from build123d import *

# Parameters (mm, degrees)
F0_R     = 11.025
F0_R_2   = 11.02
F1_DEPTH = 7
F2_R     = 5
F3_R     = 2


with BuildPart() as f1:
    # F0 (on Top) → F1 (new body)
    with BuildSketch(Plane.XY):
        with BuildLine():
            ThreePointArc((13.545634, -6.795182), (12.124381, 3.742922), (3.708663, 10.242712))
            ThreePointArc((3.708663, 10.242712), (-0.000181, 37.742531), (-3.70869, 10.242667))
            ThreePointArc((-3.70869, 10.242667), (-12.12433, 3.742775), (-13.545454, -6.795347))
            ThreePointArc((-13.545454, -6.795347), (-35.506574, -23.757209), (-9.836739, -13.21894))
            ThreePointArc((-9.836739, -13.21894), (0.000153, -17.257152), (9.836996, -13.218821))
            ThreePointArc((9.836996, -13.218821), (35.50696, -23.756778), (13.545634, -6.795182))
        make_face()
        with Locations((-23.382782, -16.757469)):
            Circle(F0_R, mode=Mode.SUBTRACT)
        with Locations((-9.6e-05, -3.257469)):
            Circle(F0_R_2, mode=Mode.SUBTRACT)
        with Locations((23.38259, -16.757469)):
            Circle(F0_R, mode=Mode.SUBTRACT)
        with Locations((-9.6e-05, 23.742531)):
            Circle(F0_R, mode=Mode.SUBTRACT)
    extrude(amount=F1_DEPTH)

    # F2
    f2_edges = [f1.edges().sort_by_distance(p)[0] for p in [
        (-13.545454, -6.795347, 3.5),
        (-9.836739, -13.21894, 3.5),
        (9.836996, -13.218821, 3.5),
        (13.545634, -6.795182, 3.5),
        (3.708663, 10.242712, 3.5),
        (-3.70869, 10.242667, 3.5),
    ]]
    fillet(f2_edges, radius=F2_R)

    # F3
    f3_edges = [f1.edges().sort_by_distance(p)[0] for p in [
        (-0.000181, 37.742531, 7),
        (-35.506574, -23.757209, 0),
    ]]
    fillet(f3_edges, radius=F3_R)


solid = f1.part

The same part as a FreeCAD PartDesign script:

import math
import FreeCAD as App
import Part
import Sketcher
Q = App.Units.Quantity


def edges_at(feature, points):
    """Names of the edges that pass closest to the given points."""
    edges = feature.Shape.Edges
    near = lambda p: min(range(len(edges)), key=lambda i: edges[i].distToShape(Part.Vertex(*p))[0])
    return sorted({f"Edge{near(p) + 1}" for p in points})

doc = App.newDocument("Part")
body = doc.addObject("PartDesign::Body", "Body")

sketch1 = doc.addObject("Sketcher::SketchObject", "Sketch")
body.addObject(sketch1)
sketch1.AttachmentSupport = (doc.XY_Plane, [""])
sketch1.MapMode = "FlatFace"
sketch1.addGeometry([
    Part.ArcOfCircle(Part.Circle(App.Vector(0.000067, -3.257153, 0), App.Vector(0, 0, 1), 14.000001), math.radians(-14.638311), math.radians(74.639008)),
    Part.ArcOfCircle(Part.Circle(App.Vector(-0.000095, 23.742531, 0), App.Vector(0, 0, 1), 14), math.radians(-74.638317), math.radians(254.639012)),
    Part.ArcOfCircle(Part.Circle(App.Vector(0.000067, -3.257151, 0), App.Vector(0, 0, 1), 13.999999), math.radians(105.361678), math.radians(194.639017)),
    Part.ArcOfCircle(Part.Circle(App.Vector(-23.382261, -16.757135, 0), App.Vector(0, 0, 1), 14), math.radians(45.361681), math.radians(374.639013)),
    Part.ArcOfCircle(Part.Circle(App.Vector(0.000068, -3.257152, 0), App.Vector(0, 0, 1), 14), math.radians(-134.63832), math.radians(-45.360987)),
    Part.ArcOfCircle(Part.Circle(App.Vector(23.382562, -16.756852, 0), App.Vector(0, 0, 1), 14), math.radians(165.361682), math.radians(494.639009)),
    Part.Circle(App.Vector(-23.382782, -16.757469, 0), App.Vector(0, 0, 1), 11.025),
    Part.Circle(App.Vector(23.38259, -16.757469, 0), App.Vector(0, 0, 1), 11.025),
    Part.Circle(App.Vector(-0.000096, -3.257469, 0), App.Vector(0, 0, 1), 11.02),
    Part.Circle(App.Vector(-0.000096, 23.742531, 0), App.Vector(0, 0, 1), 11.025),
], False)
sketch1.addConstraint([
    Sketcher.Constraint("Coincident", 0, 2, 1, 1),
    Sketcher.Constraint("Coincident", 1, 2, 2, 1),
    Sketcher.Constraint("Coincident", 2, 2, 3, 1),
    Sketcher.Constraint("Coincident", 3, 2, 4, 1),
    Sketcher.Constraint("Coincident", 4, 2, 5, 1),
    Sketcher.Constraint("Coincident", 5, 2, 0, 1),
    Sketcher.Constraint("Coincident", 2, 3, 0, 3),
    Sketcher.Constraint("Coincident", 4, 3, 0, 3),
    Sketcher.Constraint("Coincident", 9, 3, 1, 3),
    Sketcher.Constraint("Equal", 0, 1),
    Sketcher.Constraint("Equal", 1, 2),
    Sketcher.Constraint("Equal", 2, 3),
    Sketcher.Constraint("Equal", 3, 4),
    Sketcher.Constraint("Equal", 4, 5),
    Sketcher.Constraint("Equal", 6, 7),
    Sketcher.Constraint("Equal", 7, 9),
    Sketcher.Constraint("Horizontal", 6, 3, 7, 3),
    Sketcher.Constraint("Vertical", 1, 3, 8, 3),
    Sketcher.Constraint("Radius", 0, Q("14.000001 mm")),
    Sketcher.Constraint("Diameter", 6, Q("22.05 mm")),
    Sketcher.Constraint("Diameter", 8, Q("22.04 mm")),
    Sketcher.Constraint("DistanceY", 8, 3, 9, 3, Q("27 mm")),
    Sketcher.Constraint("DistanceY", 5, 3, 4, 3, Q("13.499699 mm")),
    Sketcher.Constraint("DistanceY", -1, 1, 1, 3, Q("23.742531 mm")),
    Sketcher.Constraint("DistanceY", 2, 3, -1, 1, Q("3.257151 mm")),
    Sketcher.Constraint("DistanceX", 3, 3, -1, 1, Q("23.382261 mm")),
    Sketcher.Constraint("DistanceX", -1, 1, 5, 3, Q("23.382562 mm")),
    Sketcher.Constraint("DistanceX", 6, 3, -1, 1, Q("23.382782 mm")),
    Sketcher.Constraint("DistanceY", 6, 3, -1, 1, Q("16.757469 mm")),
    Sketcher.Constraint("DistanceX", -1, 1, 7, 3, Q("23.38259 mm")),
    Sketcher.Constraint("DistanceX", 1, 2, -1, 1, Q("3.70869 mm")),
    Sketcher.Constraint("DistanceX", 3, 2, -1, 1, Q("9.836739 mm")),
    Sketcher.Constraint("DistanceY", 3, 2, -1, 1, Q("13.21894 mm")),
])
pad1 = doc.addObject("PartDesign::Pad", "Pad")
body.addObject(pad1)
pad1.Profile = sketch1
pad1.Length = 7
doc.recompute()

fillet = doc.addObject("PartDesign::Fillet", "Fillet")
body.addObject(fillet)
fillet.Base = (pad1, edges_at(pad1, [
    (-13.545, -6.795, 3.5),
    (-9.837, -13.219, 3.5),
    (9.837, -13.219, 3.5),
    (13.546, -6.795, 3.5),
    (3.709, 10.243, 3.5),
    (-3.709, 10.243, 3.5),
]))
fillet.Radius = 5
doc.recompute()

fillet2 = doc.addObject("PartDesign::Fillet", "Fillet001")
body.addObject(fillet2)
fillet2.Base = (fillet, edges_at(fillet, [(0, 37.743, 7), (-35.507, -23.757, 0)]))
fillet2.Radius = 2

doc.recompute()
